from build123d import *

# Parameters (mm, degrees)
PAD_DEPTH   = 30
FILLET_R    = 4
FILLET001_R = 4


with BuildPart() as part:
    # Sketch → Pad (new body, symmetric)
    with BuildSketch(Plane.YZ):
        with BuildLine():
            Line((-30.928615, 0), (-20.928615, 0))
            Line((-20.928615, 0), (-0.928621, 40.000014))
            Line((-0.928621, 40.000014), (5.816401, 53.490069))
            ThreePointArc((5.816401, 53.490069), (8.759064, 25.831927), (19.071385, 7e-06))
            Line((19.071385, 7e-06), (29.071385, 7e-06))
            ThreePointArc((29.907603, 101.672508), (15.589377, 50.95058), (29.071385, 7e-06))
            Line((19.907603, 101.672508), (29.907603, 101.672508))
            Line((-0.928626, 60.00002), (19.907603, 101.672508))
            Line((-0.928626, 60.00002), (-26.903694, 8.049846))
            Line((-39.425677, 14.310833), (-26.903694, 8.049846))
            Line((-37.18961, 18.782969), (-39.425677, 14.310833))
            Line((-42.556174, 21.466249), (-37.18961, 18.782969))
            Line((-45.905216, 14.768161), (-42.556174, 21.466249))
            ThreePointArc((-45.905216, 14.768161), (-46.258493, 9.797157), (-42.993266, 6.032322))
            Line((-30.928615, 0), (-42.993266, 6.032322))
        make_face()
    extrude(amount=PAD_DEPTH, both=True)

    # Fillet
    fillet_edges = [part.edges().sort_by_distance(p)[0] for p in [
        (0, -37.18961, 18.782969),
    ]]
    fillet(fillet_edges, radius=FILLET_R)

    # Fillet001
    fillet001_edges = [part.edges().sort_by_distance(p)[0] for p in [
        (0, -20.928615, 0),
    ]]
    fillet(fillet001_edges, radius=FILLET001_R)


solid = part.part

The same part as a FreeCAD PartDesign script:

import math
import FreeCAD as App
import Part
import Sketcher
from FreeCAD import Vector


def edges_at(feature, points):
    """Names of the edges that pass closest to the given points."""
    edges = feature.Shape.Edges
    near = lambda p: min(range(len(edges)), key=lambda i: edges[i].distToShape(Part.Vertex(*p))[0])
    return sorted({f"Edge{near(p) + 1}" for p in points})

doc = App.newDocument("Part")
body = doc.addObject("PartDesign::Body", "Body")

# Sketch on YZ plane
sketch1 = body.newObject("Sketcher::SketchObject", "Sketch")
sketch1.AttachmentSupport = (doc.getObject("YZ_Plane"), [""])
sketch1.MapMode = "FlatFace"
sketch1.addGeometry(Part.LineSegment(Vector(-30.9, 0, 0), Vector(-20.9, 0, 0)), False)
sketch1.addGeometry(Part.LineSegment(Vector(-20.9, 0, 0), Vector(-0.9, 40, 0)), False)
sketch1.addGeometry(Part.LineSegment(Vector(-0.9, 40, 0), Vector(5.8, 53.5, 0)), False)
sketch1.addGeometry(Part.ArcOfCircle(Part.Circle(Vector(107.7, 50.3, 0), Vector(0, 0, 1), 101.9), math.radians(178), math.radians(210)), False)
sketch1.addGeometry(Part.LineSegment(Vector(19.1, 0, 0), Vector(29.1, 0, 0)), False)
sketch1.addGeometry(Part.ArcOfCircle(Part.Circle(Vector(115.5, 50.1, 0), Vector(0, 0, 1), 99.9), math.radians(149), math.radians(210)), False)
sketch1.addGeometry(Part.LineSegment(Vector(29.9, 101.7, 0), Vector(19.9, 101.7, 0)), False)
sketch1.addGeometry(Part.LineSegment(Vector(19.9, 101.7, 0), Vector(-0.9, 60, 0)), False)
sketch1.addGeometry(Part.LineSegment(Vector(-0.9, 60, 0), Vector(-26.9, 8, 0)), False)
sketch1.addGeometry(Part.LineSegment(Vector(-26.9, 8, 0), Vector(-39.4, 14.3, 0)), False)
sketch1.addGeometry(Part.LineSegment(Vector(-39.4, 14.3, 0), Vector(-37.2, 18.8, 0)), False)
sketch1.addGeometry(Part.LineSegment(Vector(-37.2, 18.8, 0), Vector(-42.6, 21.5, 0)), False)
sketch1.addGeometry(Part.LineSegment(Vector(-42.6, 21.5, 0), Vector(-45.9, 14.8, 0)), False)
sketch1.addGeometry(Part.ArcOfCircle(Part.Circle(Vector(-40.1, 11.9, 0), Vector(0, 0, 1), 6.5), math.radians(153), math.radians(243)), False)
sketch1.addGeometry(Part.LineSegment(Vector(-43, 6, 0), Vector(-30.9, 0, 0)), False)
sketch1.addConstraint(Sketcher.Constraint("Coincident", 0, 2, 1, 1))
sketch1.addConstraint(Sketcher.Constraint("Coincident", 1, 2, 2, 1))
sketch1.addConstraint(Sketcher.Constraint("Coincident", 2, 2, 3, 1))
sketch1.addConstraint(Sketcher.Constraint("Coincident", 3, 2, 4, 1))
sketch1.addConstraint(Sketcher.Constraint("Coincident", 4, 2, 5, 2))
sketch1.addConstraint(Sketcher.Constraint("Coincident", 5, 1, 6, 1))
sketch1.addConstraint(Sketcher.Constraint("Coincident", 6, 2, 7, 1))
sketch1.addConstraint(Sketcher.Constraint("Coincident", 7, 2, 8, 1))
sketch1.addConstraint(Sketcher.Constraint("Coincident", 8, 2, 9, 1))
sketch1.addConstraint(Sketcher.Constraint("Coincident", 9, 2, 10, 1))
sketch1.addConstraint(Sketcher.Constraint("Coincident", 10, 2, 11, 1))
sketch1.addConstraint(Sketcher.Constraint("Coincident", 11, 2, 12, 1))
sketch1.addConstraint(Sketcher.Constraint("Tangent", 12, 2, 13, 1))
sketch1.addConstraint(Sketcher.Constraint("Tangent", 13, 2, 14, 1))
sketch1.addConstraint(Sketcher.Constraint("Coincident", 14, 2, 0, 1))
sketch1.addConstraint(Sketcher.Constraint("Horizontal", 0))
sketch1.addConstraint(Sketcher.Constraint("Horizontal", 4))
sketch1.addConstraint(Sketcher.Constraint("Horizontal", 6))
sketch1.addConstraint(Sketcher.Constraint("PointOnObject", 0, 2, -1))
sketch1.addConstraint(Sketcher.Constraint("Parallel", 1, 2))
sketch1.addConstraint(Sketcher.Constraint("Parallel", 2, 7))
sketch1.addConstraint(Sketcher.Constraint("Parallel", 7, 8))
sketch1.addConstraint(Sketcher.Constraint("Perpendicular", 8, 9))
sketch1.addConstraint(Sketcher.Constraint("Perpendicular", 9, 10))
sketch1.addConstraint(Sketcher.Constraint("Perpendicular", 10, 11))
sketch1.addConstraint(Sketcher.Constraint("Perpendicular", 11, 12))
sketch1.addConstraint(Sketcher.Constraint("Perpendicular", 12, 14))
sketch1.addConstraint(Sketcher.Constraint("Equal", 0, 4))
sketch1.addConstraint(Sketcher.Constraint("Equal", 4, 6))
sketch1.addConstraint(Sketcher.Constraint("DistanceX", 0, 1, 0, 2, 10.0))
sketch1.addConstraint(Sketcher.Constraint("Distance", 9, 14.000001))
sketch1.addConstraint(Sketcher.Constraint("Distance", 10, 5.0))
sketch1.addConstraint(Sketcher.Constraint("Distance", 11, 6.0))
sketch1.addConstraint(Sketcher.Constraint("DistanceX", 0, 2, 3, 2, 40.0))
sketch1.addConstraint(Sketcher.Constraint("Radius", 3, 101.893461))
sketch1.addConstraint(Sketcher.Constraint("Radius", 13, 6.51131))
sketch1.addConstraint(Sketcher.Constraint("Radius", 5, 99.913963))
sketch1.addConstraint(Sketcher.Constraint("DistanceX", -1, 1, 2, 2, 5.816401))
sketch1.addConstraint(Sketcher.Constraint("DistanceX", 3, 3, 5, 3, 7.838799))
sketch1.addConstraint(Sketcher.Constraint("DistanceX", 13, 3, 1, 2, 39.152702))
sketch1.addConstraint(Sketcher.Constraint("DistanceY", 4, 2, 5, 1, 101.672501))
sketch1.addConstraint(Sketcher.Constraint("Distance", 1, 44.721369))
sketch1.addConstraint(Sketcher.Constraint("Distance", 7, 46.591251))
sketch1.addConstraint(Sketcher.Constraint("Distance", 8, 58.082052))
sketch1.addConstraint(Sketcher.Constraint("Distance", 12, 7.488689))
sketch1.addConstraint(Sketcher.Constraint("Distance", 14, 13.488688))
pad1 = body.newObject("PartDesign::Pad", "Pad")
pad1.Profile = sketch1
pad1.Length = 60
pad1.Midplane = True
doc.recompute()

fillet = body.newObject("PartDesign::Fillet", "Fillet")
fillet.Base = (pad1, edges_at(pad1, [(0, -37.19, 18.783)]))
fillet.Radius = 4
doc.recompute()

fillet2 = body.newObject("PartDesign::Fillet", "Fillet001")
fillet2.Base = (fillet, edges_at(fillet, [(0, -20.929, 0)]))
fillet2.Radius = 4

doc.recompute()
